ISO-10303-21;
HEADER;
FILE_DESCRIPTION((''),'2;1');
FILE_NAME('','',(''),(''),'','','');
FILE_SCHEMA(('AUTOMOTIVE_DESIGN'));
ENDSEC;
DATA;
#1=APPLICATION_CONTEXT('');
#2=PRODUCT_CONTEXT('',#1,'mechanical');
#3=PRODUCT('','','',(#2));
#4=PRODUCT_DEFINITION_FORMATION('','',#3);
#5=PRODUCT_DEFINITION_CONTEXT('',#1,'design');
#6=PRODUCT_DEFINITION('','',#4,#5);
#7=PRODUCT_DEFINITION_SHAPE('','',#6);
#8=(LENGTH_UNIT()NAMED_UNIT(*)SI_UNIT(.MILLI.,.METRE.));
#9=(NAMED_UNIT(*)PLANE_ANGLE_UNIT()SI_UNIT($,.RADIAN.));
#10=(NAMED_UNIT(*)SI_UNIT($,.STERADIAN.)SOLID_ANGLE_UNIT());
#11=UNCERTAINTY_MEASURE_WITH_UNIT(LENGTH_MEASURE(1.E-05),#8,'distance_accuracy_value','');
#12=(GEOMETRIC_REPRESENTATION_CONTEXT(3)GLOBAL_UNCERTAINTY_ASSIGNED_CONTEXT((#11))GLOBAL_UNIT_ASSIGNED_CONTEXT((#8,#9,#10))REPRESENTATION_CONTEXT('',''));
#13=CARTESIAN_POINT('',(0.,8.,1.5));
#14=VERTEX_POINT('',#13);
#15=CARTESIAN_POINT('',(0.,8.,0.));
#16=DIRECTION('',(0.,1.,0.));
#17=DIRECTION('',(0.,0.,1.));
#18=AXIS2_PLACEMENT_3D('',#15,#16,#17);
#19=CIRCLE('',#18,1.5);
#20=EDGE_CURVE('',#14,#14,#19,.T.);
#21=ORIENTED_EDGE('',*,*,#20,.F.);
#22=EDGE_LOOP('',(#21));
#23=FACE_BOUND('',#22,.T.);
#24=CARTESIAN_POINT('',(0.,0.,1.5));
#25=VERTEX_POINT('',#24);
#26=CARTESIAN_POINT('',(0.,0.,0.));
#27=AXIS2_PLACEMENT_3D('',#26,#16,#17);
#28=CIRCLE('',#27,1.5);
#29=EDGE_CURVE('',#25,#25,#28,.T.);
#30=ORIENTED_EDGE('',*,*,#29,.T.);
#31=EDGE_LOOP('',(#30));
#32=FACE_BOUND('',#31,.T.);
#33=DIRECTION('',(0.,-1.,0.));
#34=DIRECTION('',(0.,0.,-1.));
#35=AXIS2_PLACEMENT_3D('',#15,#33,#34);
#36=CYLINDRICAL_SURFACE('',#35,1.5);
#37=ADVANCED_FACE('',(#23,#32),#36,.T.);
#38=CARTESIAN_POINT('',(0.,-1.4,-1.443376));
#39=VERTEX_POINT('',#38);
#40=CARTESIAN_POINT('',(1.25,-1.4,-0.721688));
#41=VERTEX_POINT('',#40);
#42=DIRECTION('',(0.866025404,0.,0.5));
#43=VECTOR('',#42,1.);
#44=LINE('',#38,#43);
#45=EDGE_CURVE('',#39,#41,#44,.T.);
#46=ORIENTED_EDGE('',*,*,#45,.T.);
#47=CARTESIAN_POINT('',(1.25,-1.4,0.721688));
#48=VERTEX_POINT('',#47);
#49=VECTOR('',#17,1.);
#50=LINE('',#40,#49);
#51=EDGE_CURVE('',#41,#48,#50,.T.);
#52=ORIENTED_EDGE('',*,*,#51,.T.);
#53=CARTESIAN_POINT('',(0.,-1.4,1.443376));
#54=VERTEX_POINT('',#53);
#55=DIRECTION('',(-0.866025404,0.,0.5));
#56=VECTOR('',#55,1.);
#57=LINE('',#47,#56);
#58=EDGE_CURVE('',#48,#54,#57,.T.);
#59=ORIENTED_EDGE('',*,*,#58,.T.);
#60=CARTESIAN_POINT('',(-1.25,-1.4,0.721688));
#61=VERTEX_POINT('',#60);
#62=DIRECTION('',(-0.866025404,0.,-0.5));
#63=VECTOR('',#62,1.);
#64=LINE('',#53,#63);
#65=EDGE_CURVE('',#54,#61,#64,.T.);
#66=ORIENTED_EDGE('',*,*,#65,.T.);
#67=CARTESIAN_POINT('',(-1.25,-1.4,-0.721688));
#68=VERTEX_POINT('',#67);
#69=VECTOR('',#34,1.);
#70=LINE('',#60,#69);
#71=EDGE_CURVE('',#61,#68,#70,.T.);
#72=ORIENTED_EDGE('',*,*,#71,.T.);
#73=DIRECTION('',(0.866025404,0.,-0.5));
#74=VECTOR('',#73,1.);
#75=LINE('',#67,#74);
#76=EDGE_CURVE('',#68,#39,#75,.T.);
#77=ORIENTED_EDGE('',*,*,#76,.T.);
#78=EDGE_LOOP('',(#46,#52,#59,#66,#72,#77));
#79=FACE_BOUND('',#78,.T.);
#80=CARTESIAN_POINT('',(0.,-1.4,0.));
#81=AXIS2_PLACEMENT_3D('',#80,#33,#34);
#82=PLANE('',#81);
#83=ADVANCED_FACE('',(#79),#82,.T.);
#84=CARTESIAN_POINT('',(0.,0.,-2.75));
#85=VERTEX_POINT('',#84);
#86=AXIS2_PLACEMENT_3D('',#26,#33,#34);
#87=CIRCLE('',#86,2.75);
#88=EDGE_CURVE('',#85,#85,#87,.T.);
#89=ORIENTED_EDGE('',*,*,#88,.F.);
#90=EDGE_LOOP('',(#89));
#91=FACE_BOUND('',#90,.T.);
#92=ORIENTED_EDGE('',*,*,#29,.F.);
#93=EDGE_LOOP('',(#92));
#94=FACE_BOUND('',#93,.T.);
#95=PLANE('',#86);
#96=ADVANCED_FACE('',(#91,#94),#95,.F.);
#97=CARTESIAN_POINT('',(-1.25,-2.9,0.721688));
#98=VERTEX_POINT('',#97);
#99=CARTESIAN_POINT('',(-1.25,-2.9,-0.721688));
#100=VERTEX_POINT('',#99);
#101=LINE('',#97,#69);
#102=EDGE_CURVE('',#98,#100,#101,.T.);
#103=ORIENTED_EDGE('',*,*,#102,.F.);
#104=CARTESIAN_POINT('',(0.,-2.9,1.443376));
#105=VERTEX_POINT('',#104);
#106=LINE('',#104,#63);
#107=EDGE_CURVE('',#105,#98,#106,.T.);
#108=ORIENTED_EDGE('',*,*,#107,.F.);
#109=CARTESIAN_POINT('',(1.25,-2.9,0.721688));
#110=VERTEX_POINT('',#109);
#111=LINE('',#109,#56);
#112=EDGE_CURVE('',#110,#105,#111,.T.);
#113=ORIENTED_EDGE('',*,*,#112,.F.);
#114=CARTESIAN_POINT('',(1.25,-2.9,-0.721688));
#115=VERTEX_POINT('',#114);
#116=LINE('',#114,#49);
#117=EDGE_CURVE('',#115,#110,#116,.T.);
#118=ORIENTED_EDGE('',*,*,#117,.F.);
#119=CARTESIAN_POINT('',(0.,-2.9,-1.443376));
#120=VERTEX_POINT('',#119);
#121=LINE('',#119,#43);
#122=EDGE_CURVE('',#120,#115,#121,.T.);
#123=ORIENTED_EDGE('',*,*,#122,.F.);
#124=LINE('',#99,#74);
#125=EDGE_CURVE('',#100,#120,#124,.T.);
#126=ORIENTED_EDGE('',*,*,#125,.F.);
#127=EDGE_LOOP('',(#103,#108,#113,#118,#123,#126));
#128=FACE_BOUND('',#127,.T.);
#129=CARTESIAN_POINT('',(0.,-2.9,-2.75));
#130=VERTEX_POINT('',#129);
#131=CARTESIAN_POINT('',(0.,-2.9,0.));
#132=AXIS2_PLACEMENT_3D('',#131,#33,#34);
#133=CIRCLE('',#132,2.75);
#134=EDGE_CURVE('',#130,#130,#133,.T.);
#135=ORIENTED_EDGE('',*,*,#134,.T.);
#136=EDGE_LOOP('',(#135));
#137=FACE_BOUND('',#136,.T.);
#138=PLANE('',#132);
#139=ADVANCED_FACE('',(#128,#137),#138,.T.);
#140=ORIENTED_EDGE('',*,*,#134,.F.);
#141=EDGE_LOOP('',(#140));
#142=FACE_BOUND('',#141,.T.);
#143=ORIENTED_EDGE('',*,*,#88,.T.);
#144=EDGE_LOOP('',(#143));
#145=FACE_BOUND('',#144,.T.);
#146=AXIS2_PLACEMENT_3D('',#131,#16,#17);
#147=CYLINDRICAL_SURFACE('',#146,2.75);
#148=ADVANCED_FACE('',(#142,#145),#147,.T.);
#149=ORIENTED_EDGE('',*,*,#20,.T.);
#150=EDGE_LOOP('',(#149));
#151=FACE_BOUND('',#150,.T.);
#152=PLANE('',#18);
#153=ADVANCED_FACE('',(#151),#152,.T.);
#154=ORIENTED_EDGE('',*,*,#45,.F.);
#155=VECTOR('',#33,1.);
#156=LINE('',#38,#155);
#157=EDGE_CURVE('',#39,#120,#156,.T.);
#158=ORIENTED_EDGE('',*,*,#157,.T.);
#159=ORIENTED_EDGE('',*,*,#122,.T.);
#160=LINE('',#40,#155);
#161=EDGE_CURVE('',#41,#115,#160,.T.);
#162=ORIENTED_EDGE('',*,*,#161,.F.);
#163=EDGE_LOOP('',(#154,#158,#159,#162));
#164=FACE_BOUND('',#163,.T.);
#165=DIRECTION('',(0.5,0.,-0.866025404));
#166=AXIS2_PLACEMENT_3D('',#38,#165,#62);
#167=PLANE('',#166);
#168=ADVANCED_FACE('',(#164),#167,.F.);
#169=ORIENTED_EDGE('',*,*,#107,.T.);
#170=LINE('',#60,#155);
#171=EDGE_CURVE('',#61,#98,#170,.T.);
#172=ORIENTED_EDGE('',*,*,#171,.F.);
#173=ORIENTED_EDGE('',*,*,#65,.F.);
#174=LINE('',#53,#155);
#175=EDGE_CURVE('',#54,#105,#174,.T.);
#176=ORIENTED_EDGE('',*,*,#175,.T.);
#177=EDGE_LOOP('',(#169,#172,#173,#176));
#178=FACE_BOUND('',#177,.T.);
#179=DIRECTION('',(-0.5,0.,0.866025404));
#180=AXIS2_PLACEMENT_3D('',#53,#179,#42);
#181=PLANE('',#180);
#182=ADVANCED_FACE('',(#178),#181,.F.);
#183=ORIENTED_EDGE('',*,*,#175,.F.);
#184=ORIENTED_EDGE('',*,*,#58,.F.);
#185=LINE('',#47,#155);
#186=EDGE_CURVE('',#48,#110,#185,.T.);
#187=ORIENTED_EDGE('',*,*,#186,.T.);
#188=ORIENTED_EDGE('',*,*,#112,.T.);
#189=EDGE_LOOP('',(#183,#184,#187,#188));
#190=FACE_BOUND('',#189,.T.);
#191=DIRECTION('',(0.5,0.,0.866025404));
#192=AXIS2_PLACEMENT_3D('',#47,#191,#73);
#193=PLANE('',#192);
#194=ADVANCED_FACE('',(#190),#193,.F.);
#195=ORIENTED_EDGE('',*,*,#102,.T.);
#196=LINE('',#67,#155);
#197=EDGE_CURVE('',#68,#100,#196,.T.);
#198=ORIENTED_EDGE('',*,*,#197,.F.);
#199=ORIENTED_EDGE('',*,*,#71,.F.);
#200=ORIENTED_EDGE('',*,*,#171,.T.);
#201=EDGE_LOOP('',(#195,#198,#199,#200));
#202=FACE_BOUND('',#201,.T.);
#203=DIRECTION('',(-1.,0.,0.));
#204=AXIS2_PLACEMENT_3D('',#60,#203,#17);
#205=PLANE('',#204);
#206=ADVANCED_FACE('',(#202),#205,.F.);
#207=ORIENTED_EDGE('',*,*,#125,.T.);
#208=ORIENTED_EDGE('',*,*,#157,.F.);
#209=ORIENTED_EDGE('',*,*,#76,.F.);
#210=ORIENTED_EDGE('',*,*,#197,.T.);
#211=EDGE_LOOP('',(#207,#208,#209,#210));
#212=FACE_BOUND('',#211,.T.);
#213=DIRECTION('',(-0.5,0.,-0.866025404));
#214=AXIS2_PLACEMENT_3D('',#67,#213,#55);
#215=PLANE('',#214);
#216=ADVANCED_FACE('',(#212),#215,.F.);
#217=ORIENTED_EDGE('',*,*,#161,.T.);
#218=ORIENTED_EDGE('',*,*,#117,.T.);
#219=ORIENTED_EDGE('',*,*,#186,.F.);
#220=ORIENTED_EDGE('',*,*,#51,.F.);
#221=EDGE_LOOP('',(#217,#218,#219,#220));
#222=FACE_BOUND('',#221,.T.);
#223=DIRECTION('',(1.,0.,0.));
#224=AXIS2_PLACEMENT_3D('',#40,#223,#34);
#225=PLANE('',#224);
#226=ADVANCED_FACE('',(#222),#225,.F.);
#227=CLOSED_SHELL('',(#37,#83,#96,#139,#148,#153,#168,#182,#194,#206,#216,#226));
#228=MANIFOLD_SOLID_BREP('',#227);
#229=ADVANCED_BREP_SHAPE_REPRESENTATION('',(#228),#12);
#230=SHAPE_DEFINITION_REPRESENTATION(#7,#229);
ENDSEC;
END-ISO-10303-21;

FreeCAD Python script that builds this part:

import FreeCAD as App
import Part
import Sketcher
from FreeCAD import Vector
Q = App.Units.Quantity


def add_polygon(sketch, points):
    """Adds a closed chain of lines whose ends are joined by coincident constraints."""
    first, n = sketch.GeometryCount, len(points)
    for a, b in zip(points, points[1:] + points[:1]):
        sketch.addGeometry(Part.LineSegment(App.Vector(*a, 0), App.Vector(*b, 0)), False)
    for i in range(n):
        sketch.addConstraint(Sketcher.Constraint("Coincident", first + i, 2, first + (i + 1) % n, 1))

doc = App.newDocument("Part")
body = doc.addObject("PartDesign::Body", "Body")

# Sketch on XZ plane
sketch1 = body.newObject("Sketcher::SketchObject", "Sketch")
sketch1.AttachmentSupport = (doc.getObject("XZ_Plane"), [""])
sketch1.MapMode = "FlatFace"
sketch1.addGeometry(Part.Circle(Vector(0, 0, 0), Vector(0, 0, 1), 1.5), False)
sketch1.addConstraint([
    Sketcher.Constraint("Coincident", 0, 3, -1, 1),
    Sketcher.Constraint("Diameter", 0, 3.0),
])
pad1 = body.newObject("PartDesign::Pad", "Pad")
pad1.Profile = sketch1
pad1.Length = 8
pad1.Reversed = True

# Sketch on XZ plane
sketch2 = body.newObject("Sketcher::SketchObject", "Sketch001")
sketch2.AttachmentSupport = (doc.getObject("XZ_Plane"), [""])
sketch2.MapMode = "FlatFace"
sketch2.addGeometry(Part.Circle(Vector(0, 0, 0), Vector(0, 0, 1), 2.75), False)
sketch2.addConstraint([
    Sketcher.Constraint("Coincident", 0, 3, -1, 1),
    Sketcher.Constraint("Diameter", 0, 5.5),
])
pad2 = body.newObject("PartDesign::Pad", "Pad001")
pad2.Profile = sketch2
pad2.Length = 2.9

# Sketch on XZ plane
sketch3 = body.newObject("Sketcher::SketchObject", "Sketch002")
sketch3.AttachmentSupport = (doc.getObject("XZ_Plane"), [""])
sketch3.MapMode = "FlatFace"
sketch3.AttachmentOffset = App.Placement(Vector(0, 0, 2.9), App.Rotation())
add_polygon(sketch3, [(1.25, 0.721688), (0, 1.443376), (-1.25, 0.721688), (-1.25, -0.721688), (0, -1.443376), (1.25, -0.721688)])  # lines 0-5
sketch3.addConstraint([
    Sketcher.Constraint("Vertical", 2),
    Sketcher.Constraint("Vertical", 5),
    Sketcher.Constraint("Symmetric", 0, 2, 3, 2, -1, 1),
    Sketcher.Constraint("Symmetric", 1, 2, 4, 2, -1, 1),
    Sketcher.Constraint("PointOnObject", 0, 2, -2),
    Sketcher.Constraint("Parallel", 0, 3),
    Sketcher.Constraint("Horizontal", 2, 2, 4, 2),
    Sketcher.Constraint("Angle", 0, Q("150 deg")),
    Sketcher.Constraint("DistanceX", 2, 2, 4, 2, 2.5),
    Sketcher.Constraint("DistanceY", 2, 2, 2, 1, 1.443376),
])
pocket1 = body.newObject("PartDesign::Pocket", "Pocket")
pocket1.Profile = sketch3
pocket1.Length = 1.5

doc.recompute()
